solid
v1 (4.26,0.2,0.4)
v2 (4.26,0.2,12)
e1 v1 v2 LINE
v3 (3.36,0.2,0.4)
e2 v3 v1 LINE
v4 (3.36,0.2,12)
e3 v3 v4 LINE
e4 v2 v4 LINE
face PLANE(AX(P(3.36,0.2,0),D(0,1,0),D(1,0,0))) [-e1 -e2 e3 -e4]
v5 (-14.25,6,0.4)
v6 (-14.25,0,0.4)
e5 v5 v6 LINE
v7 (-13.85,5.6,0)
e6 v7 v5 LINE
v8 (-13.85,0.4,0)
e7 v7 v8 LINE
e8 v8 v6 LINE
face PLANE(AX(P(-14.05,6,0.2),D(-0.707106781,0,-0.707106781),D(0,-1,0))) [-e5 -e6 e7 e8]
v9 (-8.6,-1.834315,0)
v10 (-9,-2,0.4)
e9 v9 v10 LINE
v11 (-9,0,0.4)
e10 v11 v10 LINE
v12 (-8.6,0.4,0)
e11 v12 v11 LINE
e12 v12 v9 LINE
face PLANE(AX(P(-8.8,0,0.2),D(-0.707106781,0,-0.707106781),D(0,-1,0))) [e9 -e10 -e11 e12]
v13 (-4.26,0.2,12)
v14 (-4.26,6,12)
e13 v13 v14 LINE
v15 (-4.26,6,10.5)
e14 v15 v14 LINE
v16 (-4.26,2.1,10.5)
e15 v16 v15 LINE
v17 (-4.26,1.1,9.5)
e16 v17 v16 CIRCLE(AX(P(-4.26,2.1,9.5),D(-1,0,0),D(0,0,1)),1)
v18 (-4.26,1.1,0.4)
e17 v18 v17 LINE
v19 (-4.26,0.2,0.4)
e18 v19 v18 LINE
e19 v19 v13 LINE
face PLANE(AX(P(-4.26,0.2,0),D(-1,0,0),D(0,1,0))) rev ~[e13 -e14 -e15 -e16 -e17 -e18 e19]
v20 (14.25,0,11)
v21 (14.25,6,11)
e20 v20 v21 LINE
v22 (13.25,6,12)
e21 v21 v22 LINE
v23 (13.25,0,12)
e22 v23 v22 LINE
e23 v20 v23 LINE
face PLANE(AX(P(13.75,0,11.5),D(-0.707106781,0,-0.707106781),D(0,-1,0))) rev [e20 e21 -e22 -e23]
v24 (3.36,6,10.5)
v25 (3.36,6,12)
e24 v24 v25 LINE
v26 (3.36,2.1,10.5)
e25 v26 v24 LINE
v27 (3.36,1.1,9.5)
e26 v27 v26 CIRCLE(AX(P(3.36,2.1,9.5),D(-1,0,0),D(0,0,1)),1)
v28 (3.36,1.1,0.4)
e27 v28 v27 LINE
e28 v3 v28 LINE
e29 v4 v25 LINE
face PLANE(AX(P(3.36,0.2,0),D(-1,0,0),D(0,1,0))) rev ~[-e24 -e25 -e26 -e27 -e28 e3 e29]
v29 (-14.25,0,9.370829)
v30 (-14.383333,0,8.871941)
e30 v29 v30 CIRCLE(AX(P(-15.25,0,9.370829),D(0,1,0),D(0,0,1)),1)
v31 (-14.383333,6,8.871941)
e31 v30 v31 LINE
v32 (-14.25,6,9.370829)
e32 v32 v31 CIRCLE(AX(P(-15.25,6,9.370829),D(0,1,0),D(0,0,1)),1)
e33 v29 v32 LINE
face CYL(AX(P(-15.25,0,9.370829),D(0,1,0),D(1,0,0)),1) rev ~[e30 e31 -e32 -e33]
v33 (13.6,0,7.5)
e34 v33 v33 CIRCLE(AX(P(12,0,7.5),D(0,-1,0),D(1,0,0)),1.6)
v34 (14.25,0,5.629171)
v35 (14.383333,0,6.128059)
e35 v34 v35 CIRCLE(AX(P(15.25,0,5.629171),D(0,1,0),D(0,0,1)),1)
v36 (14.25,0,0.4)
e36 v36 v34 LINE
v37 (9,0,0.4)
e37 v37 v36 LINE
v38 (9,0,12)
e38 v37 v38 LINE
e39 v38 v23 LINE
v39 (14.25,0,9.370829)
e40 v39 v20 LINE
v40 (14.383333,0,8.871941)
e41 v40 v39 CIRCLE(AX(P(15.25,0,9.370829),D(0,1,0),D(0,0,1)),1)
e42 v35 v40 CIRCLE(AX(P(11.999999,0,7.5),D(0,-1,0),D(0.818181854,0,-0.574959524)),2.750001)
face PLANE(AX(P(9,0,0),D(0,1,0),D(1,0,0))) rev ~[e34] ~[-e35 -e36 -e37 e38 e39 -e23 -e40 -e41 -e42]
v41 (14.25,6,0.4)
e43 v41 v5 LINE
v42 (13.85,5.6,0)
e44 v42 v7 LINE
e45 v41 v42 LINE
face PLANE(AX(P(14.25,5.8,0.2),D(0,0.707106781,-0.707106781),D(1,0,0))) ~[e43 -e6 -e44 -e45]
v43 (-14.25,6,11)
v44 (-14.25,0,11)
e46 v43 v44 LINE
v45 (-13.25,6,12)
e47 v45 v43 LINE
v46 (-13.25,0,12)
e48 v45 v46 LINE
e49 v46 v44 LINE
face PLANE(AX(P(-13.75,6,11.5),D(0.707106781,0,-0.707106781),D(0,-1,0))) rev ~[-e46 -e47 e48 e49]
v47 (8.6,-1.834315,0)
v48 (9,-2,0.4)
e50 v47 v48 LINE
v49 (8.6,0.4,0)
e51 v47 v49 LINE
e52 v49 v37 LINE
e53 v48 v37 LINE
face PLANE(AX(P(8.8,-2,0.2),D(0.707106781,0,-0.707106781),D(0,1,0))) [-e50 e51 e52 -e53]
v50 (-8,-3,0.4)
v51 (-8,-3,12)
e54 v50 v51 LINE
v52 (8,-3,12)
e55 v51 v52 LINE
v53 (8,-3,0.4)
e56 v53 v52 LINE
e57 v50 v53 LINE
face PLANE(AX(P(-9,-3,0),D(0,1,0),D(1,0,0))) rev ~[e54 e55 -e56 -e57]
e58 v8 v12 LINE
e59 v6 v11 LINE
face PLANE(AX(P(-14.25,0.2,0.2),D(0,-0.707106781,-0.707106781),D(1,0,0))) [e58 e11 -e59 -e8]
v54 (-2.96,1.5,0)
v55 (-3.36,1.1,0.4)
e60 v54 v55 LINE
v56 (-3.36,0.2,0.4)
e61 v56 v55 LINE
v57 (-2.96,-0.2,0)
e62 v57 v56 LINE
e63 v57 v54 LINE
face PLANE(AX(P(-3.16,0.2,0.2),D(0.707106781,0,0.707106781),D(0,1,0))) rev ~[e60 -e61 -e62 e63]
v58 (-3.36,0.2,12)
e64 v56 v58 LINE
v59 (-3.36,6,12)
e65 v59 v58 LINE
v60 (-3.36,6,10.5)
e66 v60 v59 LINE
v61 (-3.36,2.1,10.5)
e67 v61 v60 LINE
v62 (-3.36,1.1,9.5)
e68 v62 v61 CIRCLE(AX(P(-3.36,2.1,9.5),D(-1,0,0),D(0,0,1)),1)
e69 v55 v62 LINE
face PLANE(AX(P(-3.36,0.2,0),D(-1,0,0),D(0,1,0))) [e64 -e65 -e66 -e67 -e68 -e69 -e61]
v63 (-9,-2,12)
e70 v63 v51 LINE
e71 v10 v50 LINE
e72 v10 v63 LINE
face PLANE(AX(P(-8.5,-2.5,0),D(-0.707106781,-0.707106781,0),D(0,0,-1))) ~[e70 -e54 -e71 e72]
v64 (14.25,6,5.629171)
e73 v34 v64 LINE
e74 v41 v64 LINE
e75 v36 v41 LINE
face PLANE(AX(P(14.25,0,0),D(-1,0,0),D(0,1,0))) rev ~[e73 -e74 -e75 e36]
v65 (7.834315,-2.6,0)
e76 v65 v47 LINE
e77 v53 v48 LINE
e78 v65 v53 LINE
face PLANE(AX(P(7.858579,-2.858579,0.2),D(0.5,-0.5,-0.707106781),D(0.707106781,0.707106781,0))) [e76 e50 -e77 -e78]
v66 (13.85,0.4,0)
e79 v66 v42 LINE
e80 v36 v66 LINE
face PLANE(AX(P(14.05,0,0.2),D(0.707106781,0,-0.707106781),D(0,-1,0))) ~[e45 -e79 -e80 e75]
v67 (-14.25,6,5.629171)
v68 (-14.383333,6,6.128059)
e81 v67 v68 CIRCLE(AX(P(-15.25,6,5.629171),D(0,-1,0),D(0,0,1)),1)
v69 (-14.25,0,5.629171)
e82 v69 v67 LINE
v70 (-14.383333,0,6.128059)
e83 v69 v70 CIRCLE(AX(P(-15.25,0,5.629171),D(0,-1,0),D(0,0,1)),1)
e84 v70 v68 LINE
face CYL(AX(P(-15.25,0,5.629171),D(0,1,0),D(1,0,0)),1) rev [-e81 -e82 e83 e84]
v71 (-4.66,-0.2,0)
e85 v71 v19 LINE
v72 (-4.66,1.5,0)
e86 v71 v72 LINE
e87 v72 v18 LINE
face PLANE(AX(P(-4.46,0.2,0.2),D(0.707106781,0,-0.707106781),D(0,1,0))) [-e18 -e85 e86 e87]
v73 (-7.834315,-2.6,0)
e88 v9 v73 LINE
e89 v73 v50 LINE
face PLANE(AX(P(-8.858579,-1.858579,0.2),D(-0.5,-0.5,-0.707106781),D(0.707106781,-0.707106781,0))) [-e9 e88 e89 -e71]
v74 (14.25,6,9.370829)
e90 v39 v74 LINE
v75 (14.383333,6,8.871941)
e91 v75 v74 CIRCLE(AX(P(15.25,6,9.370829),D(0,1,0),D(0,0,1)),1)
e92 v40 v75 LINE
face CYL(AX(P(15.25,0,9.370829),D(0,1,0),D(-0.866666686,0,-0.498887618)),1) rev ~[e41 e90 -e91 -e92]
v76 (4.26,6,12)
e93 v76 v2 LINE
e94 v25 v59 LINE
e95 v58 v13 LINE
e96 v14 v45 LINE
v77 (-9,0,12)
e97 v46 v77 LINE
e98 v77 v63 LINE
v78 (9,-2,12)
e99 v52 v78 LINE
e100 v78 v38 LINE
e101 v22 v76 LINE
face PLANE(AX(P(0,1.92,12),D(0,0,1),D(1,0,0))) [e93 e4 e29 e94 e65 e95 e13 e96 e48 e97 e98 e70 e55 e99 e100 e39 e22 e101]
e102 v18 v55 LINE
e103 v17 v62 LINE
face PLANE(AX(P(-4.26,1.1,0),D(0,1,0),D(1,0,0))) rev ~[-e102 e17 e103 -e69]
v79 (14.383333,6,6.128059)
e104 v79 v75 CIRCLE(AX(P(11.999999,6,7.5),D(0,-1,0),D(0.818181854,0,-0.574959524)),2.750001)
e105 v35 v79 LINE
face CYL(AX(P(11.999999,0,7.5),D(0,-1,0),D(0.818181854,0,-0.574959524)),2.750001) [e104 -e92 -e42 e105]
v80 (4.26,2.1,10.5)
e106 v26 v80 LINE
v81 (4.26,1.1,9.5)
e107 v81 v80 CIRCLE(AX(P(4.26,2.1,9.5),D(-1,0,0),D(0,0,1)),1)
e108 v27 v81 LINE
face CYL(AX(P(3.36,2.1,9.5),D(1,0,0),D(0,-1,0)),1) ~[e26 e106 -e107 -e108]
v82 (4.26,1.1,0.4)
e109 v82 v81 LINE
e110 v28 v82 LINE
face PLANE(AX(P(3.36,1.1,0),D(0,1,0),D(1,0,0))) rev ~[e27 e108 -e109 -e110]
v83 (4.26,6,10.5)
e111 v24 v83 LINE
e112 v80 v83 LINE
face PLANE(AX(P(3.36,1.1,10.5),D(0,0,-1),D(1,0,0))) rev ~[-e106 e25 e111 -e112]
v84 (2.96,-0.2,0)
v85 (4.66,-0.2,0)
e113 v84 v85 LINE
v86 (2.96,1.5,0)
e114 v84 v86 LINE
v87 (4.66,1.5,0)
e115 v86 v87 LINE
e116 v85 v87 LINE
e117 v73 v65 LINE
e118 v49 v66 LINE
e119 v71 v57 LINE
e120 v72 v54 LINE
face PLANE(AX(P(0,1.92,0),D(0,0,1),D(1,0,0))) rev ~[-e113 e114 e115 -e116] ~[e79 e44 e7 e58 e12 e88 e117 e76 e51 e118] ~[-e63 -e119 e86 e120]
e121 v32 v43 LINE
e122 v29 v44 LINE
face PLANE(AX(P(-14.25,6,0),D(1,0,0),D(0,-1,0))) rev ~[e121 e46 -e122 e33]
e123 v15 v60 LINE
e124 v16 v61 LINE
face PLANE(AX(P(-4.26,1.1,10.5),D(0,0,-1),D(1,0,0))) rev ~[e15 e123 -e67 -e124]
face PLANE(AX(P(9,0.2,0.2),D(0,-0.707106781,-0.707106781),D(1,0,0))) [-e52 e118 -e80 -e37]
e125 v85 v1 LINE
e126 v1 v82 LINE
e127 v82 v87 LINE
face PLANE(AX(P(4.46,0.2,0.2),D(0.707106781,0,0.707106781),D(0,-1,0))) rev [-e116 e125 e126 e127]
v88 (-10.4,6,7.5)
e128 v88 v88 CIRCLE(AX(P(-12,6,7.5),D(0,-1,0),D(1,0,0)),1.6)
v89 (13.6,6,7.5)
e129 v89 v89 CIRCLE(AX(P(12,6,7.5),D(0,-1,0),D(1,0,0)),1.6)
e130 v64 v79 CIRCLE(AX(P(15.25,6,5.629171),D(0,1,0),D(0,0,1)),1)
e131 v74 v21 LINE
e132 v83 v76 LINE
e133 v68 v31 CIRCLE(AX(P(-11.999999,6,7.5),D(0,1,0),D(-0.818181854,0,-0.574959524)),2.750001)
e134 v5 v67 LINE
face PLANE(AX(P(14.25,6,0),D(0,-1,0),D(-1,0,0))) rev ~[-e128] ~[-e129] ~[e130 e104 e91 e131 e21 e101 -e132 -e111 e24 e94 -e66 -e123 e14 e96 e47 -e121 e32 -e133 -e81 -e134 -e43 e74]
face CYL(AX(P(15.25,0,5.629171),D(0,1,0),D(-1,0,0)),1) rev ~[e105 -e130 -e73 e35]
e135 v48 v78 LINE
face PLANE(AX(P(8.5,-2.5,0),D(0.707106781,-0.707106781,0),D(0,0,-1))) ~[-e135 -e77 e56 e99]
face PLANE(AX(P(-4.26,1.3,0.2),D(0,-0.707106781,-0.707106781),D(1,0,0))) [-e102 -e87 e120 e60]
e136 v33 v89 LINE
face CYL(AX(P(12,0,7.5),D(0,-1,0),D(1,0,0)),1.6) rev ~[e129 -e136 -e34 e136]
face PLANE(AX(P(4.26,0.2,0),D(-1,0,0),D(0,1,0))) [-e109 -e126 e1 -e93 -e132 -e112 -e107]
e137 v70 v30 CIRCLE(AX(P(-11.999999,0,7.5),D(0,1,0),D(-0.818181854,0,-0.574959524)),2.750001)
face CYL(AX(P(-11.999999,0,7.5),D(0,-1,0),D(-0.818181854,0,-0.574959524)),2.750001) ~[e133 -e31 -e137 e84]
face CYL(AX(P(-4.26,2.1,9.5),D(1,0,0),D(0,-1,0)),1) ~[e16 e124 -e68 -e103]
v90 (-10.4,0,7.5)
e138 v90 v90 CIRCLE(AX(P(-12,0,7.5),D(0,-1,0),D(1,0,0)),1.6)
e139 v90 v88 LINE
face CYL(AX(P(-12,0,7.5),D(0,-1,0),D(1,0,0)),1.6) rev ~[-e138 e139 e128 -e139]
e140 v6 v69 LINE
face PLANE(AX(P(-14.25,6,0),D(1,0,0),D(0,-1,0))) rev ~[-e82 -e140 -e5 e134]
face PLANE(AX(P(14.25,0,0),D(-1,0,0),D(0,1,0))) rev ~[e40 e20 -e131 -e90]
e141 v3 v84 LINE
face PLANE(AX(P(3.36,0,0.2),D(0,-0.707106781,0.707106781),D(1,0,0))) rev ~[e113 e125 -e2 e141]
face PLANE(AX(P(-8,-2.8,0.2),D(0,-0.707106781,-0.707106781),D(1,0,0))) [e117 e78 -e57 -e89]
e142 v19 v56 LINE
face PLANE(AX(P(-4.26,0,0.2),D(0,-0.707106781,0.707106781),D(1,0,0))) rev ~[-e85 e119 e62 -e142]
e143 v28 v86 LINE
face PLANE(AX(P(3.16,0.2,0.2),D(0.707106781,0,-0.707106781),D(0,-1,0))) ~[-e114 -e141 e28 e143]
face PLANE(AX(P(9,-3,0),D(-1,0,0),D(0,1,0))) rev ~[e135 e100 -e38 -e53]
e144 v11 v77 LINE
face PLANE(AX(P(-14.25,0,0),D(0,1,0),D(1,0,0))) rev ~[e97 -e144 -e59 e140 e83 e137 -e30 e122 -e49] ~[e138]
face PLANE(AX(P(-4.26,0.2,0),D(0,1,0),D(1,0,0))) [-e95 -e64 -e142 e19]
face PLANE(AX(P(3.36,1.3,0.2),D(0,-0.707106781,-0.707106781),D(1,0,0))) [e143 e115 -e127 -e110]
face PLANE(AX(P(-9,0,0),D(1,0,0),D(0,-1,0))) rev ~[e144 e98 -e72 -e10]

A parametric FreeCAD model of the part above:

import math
import FreeCAD as App
import Part
import Sketcher
from FreeCAD import Vector
Q = App.Units.Quantity


def edges_at(feature, points):
    """Names of the edges that pass closest to the given points."""
    edges = feature.Shape.Edges
    near = lambda p: min(range(len(edges)), key=lambda i: edges[i].distToShape(Part.Vertex(*p))[0])
    return sorted({f"Edge{near(p) + 1}" for p in points})


def add_polygon(sketch, points):
    """Adds a closed chain of lines whose ends are joined by coincident constraints."""
    first, n = sketch.GeometryCount, len(points)
    for a, b in zip(points, points[1:] + points[:1]):
        sketch.addGeometry(Part.LineSegment(App.Vector(*a, 0), App.Vector(*b, 0)), False)
    for i in range(n):
        sketch.addConstraint(Sketcher.Constraint("Coincident", first + i, 2, first + (i + 1) % n, 1))

doc = App.newDocument("Part")
body = doc.addObject("PartDesign::Body", "Body")

sketch1 = doc.addObject("Sketcher::SketchObject", "Sketch")
body.addObject(sketch1)
sketch1.AttachmentSupport = (doc.XY_Plane, [""])
sketch1.MapMode = "FlatFace"
add_polygon(sketch1, [(-14.2, 0), (-9, 0), (-9, -3), (9, -3), (9, 0), (14.2, 0), (14.2, 6), (-14.2, 6)])
sketch1.addConstraint([
    Sketcher.Constraint("Horizontal", 0),
    Sketcher.Constraint("Vertical", 1),
    Sketcher.Constraint("Horizontal", 2),
    Sketcher.Constraint("Vertical", 3),
    Sketcher.Constraint("Horizontal", 4),
    Sketcher.Constraint("Vertical", 5),
    Sketcher.Constraint("Horizontal", 6),
    Sketcher.Constraint("Vertical", 7),
    Sketcher.Constraint("Symmetric", 0, 2, 3, 2, -1, 1),
    Sketcher.Constraint("Symmetric", 4, 2, 7, 2, -2),
    Sketcher.Constraint("DistanceX", 2, 1, 2, 2, Q("18 mm")),
    Sketcher.Constraint("DistanceY", 1, 2, 1, 1, Q("3 mm")),
    Sketcher.Constraint("DistanceY", 5, 1, 5, 2, Q("6 mm")),
    Sketcher.Constraint("DistanceX", 6, 2, 6, 1, Q("28.5 mm")),
])
pad1 = doc.addObject("PartDesign::Pad", "Pad")
body.addObject(pad1)
pad1.Profile = sketch1
pad1.Length = 12

sketch2 = doc.addObject("Sketcher::SketchObject", "Sketch001")
body.addObject(sketch2)
sketch2.AttachmentSupport = (doc.XZ_Plane, [""])
sketch2.MapMode = "FlatFace"
sketch2.addGeometry([
    Part.Circle(Vector(-12, 7.5, 0), Vector(0, 0, 1), 1.6),
    Part.Circle(Vector(12, 7.5, 0), Vector(0, 0, 1), 1.6),
], False)
sketch2.addConstraint([
    Sketcher.Constraint("Equal", 0, 1),
    Sketcher.Constraint("Symmetric", 0, 3, 1, 3, -2),
    Sketcher.Constraint("Diameter", 0, Q("3.2 mm")),
    Sketcher.Constraint("DistanceX", 0, 3, -1, 1, Q("12 mm")),
    Sketcher.Constraint("DistanceY", -1, 1, 0, 3, Q("7.5 mm")),
])
pocket1 = doc.addObject("PartDesign::Pocket", "Pocket")
body.addObject(pocket1)
pocket1.Profile = sketch2
pocket1.Type = "ThroughAll"

sketch3 = doc.addObject("Sketcher::SketchObject", "Sketch002")
body.addObject(sketch3)
sketch3.AttachmentSupport = (doc.XY_Plane, [""])
sketch3.MapMode = "FlatFace"
add_polygon(sketch3, [(-4.3, 1.1), (-4.3, 0.2), (-3.4, 0.2), (-3.4, 1.1)])
add_polygon(sketch3, [(3.4, 1.1), (3.4, 0.2), (4.3, 0.2), (4.3, 1.1)])
sketch3.addConstraint([
    Sketcher.Constraint("Vertical", 0),
    Sketcher.Constraint("Horizontal", 1),
    Sketcher.Constraint("Vertical", 2),
    Sketcher.Constraint("Horizontal", 3),
    Sketcher.Constraint("Vertical", 4),
    Sketcher.Constraint("Horizontal", 5),
    Sketcher.Constraint("Vertical", 6),
    Sketcher.Constraint("Horizontal", 7),
    Sketcher.Constraint("Symmetric", 1, 2, 4, 2, -2),
    Sketcher.Constraint("Symmetric", 3, 2, 6, 2, -2),
    Sketcher.Constraint("Equal", 7, 0),
    Sketcher.Constraint("DistanceX", 1, 1, 1, 2, Q("0.9 mm")),
    Sketcher.Constraint("DistanceY", -1, 1, 0, 2, Q("0.2 mm")),
    Sketcher.Constraint("DistanceX", 0, 2, -1, 1, Q("4.26 mm")),
])
pocket2 = doc.addObject("PartDesign::Pocket", "Pocket001")
body.addObject(pocket2)
pocket2.Profile = sketch3
pocket2.Type = "ThroughAll"
pocket2.Reversed = True

sketch4 = doc.addObject("Sketcher::SketchObject", "Sketch003")
body.addObject(sketch4)
sketch4.AttachmentSupport = (doc.XZ_Plane, [""])
sketch4.MapMode = "FlatFace"
sketch4.AttachmentOffset = App.Placement(Vector(0, 0, -1.1), App.Rotation())
add_polygon(sketch4, [(3.4, 12), (3.4, 10.5), (4.3, 10.5), (4.3, 12)])
add_polygon(sketch4, [(-4.3, 12), (-4.3, 10.5), (-3.4, 10.5), (-3.4, 12)])
sketch4.addConstraint([
    Sketcher.Constraint("Vertical", 0),
    Sketcher.Constraint("Horizontal", 1),
    Sketcher.Constraint("Vertical", 2),
    Sketcher.Constraint("Horizontal", 3),
    Sketcher.Constraint("Vertical", 4),
    Sketcher.Constraint("Horizontal", 5),
    Sketcher.Constraint("Vertical", 6),
    Sketcher.Constraint("Horizontal", 7),
    Sketcher.Constraint("Symmetric", 1, 2, 4, 2, -2),
    Sketcher.Constraint("Symmetric", 3, 2, 6, 2, -2),
    Sketcher.Constraint("DistanceX", 1, 1, 1, 2, Q("0.9 mm")),
    Sketcher.Constraint("DistanceY", 0, 2, 0, 1, Q("1.5 mm")),
    Sketcher.Constraint("DistanceY", -1, 1, 2, 2, Q("12 mm")),
    Sketcher.Constraint("DistanceX", -1, 1, 0, 2, Q("3.36 mm")),
])
pocket3 = doc.addObject("PartDesign::Pocket", "Pocket002")
body.addObject(pocket3)
pocket3.Profile = sketch4
pocket3.Type = "ThroughAll"
doc.recompute()

fillet = doc.addObject("PartDesign::Fillet", "Fillet")
body.addObject(fillet)
fillet.Base = (pocket3, edges_at(pocket3, [(3.81, 1.1, 10.5), (-3.81, 1.1, 10.5)]))
fillet.Radius = 1

sketch5 = doc.addObject("Sketcher::SketchObject", "Sketch004")
body.addObject(sketch5)
sketch5.AttachmentSupport = (doc.XZ_Plane, [""])
sketch5.MapMode = "FlatFace"
sketch5.addGeometry([
    Part.ArcOfCircle(Part.Circle(Vector(12, 7.5, 0), Vector(0, 0, 1), 2.8), math.radians(-35), math.radians(35)),
    Part.LineSegment(Vector(14.2, 9.1, 0), Vector(14.2, 5.9, 0)),
], False)
sketch5.addConstraint([
    Sketcher.Constraint("Coincident", 0, 1, 1, 2),
    Sketcher.Constraint("Coincident", 1, 1, 0, 2),
    Sketcher.Constraint("Vertical", 1),
    Sketcher.Constraint("Radius", 0, Q("2.750001 mm")),
    Sketcher.Constraint("DistanceX", -1, 1, 0, 3, Q("11.999999 mm")),
    Sketcher.Constraint("DistanceY", -1, 1, 0, 3, Q("7.5 mm")),
    Sketcher.Constraint("DistanceX", -1, 1, 0, 1, Q("14.25 mm")),
])
pad2 = doc.addObject("PartDesign::Pad", "Pad001")
body.addObject(pad2)
pad2.Profile = sketch5
pad2.Length = 6
pad2.Reversed = True
doc.recompute()

mirrored = doc.addObject("PartDesign::Mirrored", "Mirrored")
body.addObject(mirrored)
mirrored.Originals = [pad2]
mirrored.MirrorPlane = (doc.YZ_Plane, [""])
body.Tip = mirrored
doc.recompute()

fillet2 = doc.addObject("PartDesign::Fillet", "Fillet001")
body.addObject(fillet2)
fillet2.Base = (mirrored, edges_at(mirrored, [
    (14.25, 3, 9.081),
    (14.25, 3, 5.919),
    (-14.25, 3, 9.081),
    (-14.25, 3, 5.919),
]))
fillet2.Radius = 1
doc.recompute()

chamfer = doc.addObject("PartDesign::Chamfer", "Chamfer")
body.addObject(chamfer)
chamfer.Base = (fillet2, edges_at(fillet2, [
    (14.25, 3, 12),
    (-14.25, 3, 12),
    (9, -3, 6),
    (-9, -3, 6),
]))
chamfer.Size = 1
doc.recompute()

chamfer2 = doc.addObject("PartDesign::Chamfer", "Chamfer001")
body.addObject(chamfer2)
chamfer2.Base = (chamfer, edges_at(chamfer, [
    (-9, -1, 0),
    (-8.5, -2.5, 0),
    (-11.625, 0, 0),
    (0, -3, 0),
    (-14.25, 3, 0),
    (8.5, -2.5, 0),
    (0, 6, 0),
    (9, -1, 0),
    (14.25, 3, 0),
    (11.625, 0, 0),
    (3.36, 0.65, 0),
    (3.81, 0.2, 0),
    (4.26, 0.65, 0),
    (3.81, 1.1, 0),
    (-4.26, 0.65, 0),
    (-3.81, 0.2, 0),
    (-3.36, 0.65, 0),
    (-3.81, 1.1, 0),
]))
chamfer2.Size = 0.4

doc.recompute()
